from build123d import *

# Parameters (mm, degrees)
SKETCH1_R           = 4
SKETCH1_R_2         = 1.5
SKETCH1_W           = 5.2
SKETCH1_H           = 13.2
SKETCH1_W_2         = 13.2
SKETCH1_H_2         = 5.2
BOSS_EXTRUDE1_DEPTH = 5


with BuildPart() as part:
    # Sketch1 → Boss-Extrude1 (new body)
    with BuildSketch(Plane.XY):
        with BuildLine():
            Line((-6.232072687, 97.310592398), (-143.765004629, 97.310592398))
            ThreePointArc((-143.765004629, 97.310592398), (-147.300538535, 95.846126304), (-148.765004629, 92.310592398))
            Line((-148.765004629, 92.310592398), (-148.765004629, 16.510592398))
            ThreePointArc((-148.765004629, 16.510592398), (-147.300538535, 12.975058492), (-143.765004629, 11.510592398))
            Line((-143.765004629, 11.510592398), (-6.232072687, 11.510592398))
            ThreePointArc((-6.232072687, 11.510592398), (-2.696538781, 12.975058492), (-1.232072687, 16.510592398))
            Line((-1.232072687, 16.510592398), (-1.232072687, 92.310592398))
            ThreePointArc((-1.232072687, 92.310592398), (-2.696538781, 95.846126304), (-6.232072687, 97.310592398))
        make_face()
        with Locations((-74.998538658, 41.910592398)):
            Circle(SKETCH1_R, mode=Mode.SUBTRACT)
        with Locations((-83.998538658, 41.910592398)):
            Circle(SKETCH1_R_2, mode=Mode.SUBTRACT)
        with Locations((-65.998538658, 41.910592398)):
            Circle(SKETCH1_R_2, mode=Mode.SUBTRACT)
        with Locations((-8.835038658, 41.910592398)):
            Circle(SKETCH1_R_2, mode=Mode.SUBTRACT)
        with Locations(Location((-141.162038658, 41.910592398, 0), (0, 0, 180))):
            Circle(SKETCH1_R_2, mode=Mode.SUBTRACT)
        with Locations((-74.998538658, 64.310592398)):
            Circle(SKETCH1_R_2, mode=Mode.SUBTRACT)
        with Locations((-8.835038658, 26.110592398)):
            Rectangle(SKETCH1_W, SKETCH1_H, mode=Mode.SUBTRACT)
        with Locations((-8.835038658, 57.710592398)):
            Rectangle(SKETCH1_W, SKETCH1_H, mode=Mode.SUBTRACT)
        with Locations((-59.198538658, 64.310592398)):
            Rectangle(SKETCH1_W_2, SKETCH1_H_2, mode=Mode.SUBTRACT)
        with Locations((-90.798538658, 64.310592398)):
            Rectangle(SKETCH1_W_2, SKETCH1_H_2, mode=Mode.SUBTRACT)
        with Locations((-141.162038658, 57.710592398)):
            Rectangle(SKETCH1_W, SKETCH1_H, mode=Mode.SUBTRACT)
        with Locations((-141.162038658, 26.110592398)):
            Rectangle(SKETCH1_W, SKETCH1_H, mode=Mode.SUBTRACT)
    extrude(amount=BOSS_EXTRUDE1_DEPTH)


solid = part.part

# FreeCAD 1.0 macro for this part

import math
import FreeCAD as App
import Part
import Sketcher

doc = App.newDocument("Part")
body = doc.addObject("PartDesign::Body", "Body")

sketch1 = doc.addObject("Sketcher::SketchObject", "Sketch")
body.addObject(sketch1)
sketch1.AttachmentSupport = (doc.XY_Plane, [""])
sketch1.MapMode = "FlatFace"
sketch1.addGeometry(Part.LineSegment(App.Vector(-6.232073, 97.310592, 0), App.Vector(-143.765005, 97.310592, 0)), False)
sketch1.addGeometry(Part.ArcOfCircle(Part.Circle(App.Vector(-143.765005, 92.310592, 0), App.Vector(0, 0, 1), 5), math.radians(90), math.radians(180)), False)
sketch1.addGeometry(Part.LineSegment(App.Vector(-148.765005, 92.310592, 0), App.Vector(-148.765005, 16.510592, 0)), False)
sketch1.addGeometry(Part.ArcOfCircle(Part.Circle(App.Vector(-143.765005, 16.510592, 0), App.Vector(0, 0, 1), 5), math.radians(180), math.radians(270)), False)
sketch1.addGeometry(Part.LineSegment(App.Vector(-143.765005, 11.510592, 0), App.Vector(-6.232073, 11.510592, 0)), False)
sketch1.addGeometry(Part.ArcOfCircle(Part.Circle(App.Vector(-6.232073, 16.510592, 0), App.Vector(0, 0, 1), 5), math.radians(-90), math.radians(0)), False)
sketch1.addGeometry(Part.LineSegment(App.Vector(-1.232073, 16.510592, 0), App.Vector(-1.232073, 92.310592, 0)), False)
sketch1.addGeometry(Part.ArcOfCircle(Part.Circle(App.Vector(-6.232073, 92.310592, 0), App.Vector(0, 0, 1), 5), math.radians(0), math.radians(90)), False)
sketch1.addGeometry(Part.LineSegment(App.Vector(-138.562039, 19.510592, 0), App.Vector(-143.762039, 19.510592, 0)), False)
sketch1.addGeometry(Part.LineSegment(App.Vector(-143.762039, 19.510592, 0), App.Vector(-143.762039, 32.710592, 0)), False)
sketch1.addGeometry(Part.LineSegment(App.Vector(-143.762039, 32.710592, 0), App.Vector(-138.562039, 32.710592, 0)), False)
sketch1.addGeometry(Part.LineSegment(App.Vector(-138.562039, 32.710592, 0), App.Vector(-138.562039, 19.510592, 0)), False)
sketch1.addGeometry(Part.Circle(App.Vector(-141.162039, 41.910592, 0), App.Vector(0, 0, 1), 1.5), False)
sketch1.addGeometry(Part.Circle(App.Vector(-83.998539, 41.910592, 0), App.Vector(0, 0, 1), 1.5), False)
sketch1.addGeometry(Part.LineSegment(App.Vector(-6.235039, 19.510592, 0), App.Vector(-11.435039, 19.510592, 0)), False)
sketch1.addGeometry(Part.LineSegment(App.Vector(-11.435039, 19.510592, 0), App.Vector(-11.435039, 32.710592, 0)), False)
sketch1.addGeometry(Part.LineSegment(App.Vector(-11.435039, 32.710592, 0), App.Vector(-6.235039, 32.710592, 0)), False)
sketch1.addGeometry(Part.LineSegment(App.Vector(-6.235039, 32.710592, 0), App.Vector(-6.235039, 19.510592, 0)), False)
sketch1.addGeometry(Part.Circle(App.Vector(-74.998539, 41.910592, 0), App.Vector(0, 0, 1), 4), False)
sketch1.addGeometry(Part.Circle(App.Vector(-65.998539, 41.910592, 0), App.Vector(0, 0, 1), 1.5), False)
sketch1.addGeometry(Part.Circle(App.Vector(-8.835039, 41.910592, 0), App.Vector(0, 0, 1), 1.5), False)
sketch1.addGeometry(Part.LineSegment(App.Vector(-138.562039, 51.110592, 0), App.Vector(-143.762039, 51.110592, 0)), False)
sketch1.addGeometry(Part.LineSegment(App.Vector(-143.762039, 51.110592, 0), App.Vector(-143.762039, 64.310592, 0)), False)
sketch1.addGeometry(Part.LineSegment(App.Vector(-143.762039, 64.310592, 0), App.Vector(-138.562039, 64.310592, 0)), False)
sketch1.addGeometry(Part.LineSegment(App.Vector(-138.562039, 64.310592, 0), App.Vector(-138.562039, 51.110592, 0)), False)
sketch1.addGeometry(Part.LineSegment(App.Vector(-84.198539, 61.710592, 0), App.Vector(-97.398539, 61.710592, 0)), False)
sketch1.addGeometry(Part.LineSegment(App.Vector(-97.398539, 61.710592, 0), App.Vector(-97.398539, 66.910592, 0)), False)
sketch1.addGeometry(Part.LineSegment(App.Vector(-97.398539, 66.910592, 0), App.Vector(-84.198539, 66.910592, 0)), False)
sketch1.addGeometry(Part.LineSegment(App.Vector(-84.198539, 66.910592, 0), App.Vector(-84.198539, 61.710592, 0)), False)
sketch1.addGeometry(Part.Circle(App.Vector(-74.998539, 64.310592, 0), App.Vector(0, 0, 1), 1.5), False)
sketch1.addGeometry(Part.LineSegment(App.Vector(-52.598539, 61.710592, 0), App.Vector(-65.798539, 61.710592, 0)), False)
sketch1.addGeometry(Part.LineSegment(App.Vector(-65.798539, 61.710592, 0), App.Vector(-65.798539, 66.910592, 0)), False)
sketch1.addGeometry(Part.LineSegment(App.Vector(-65.798539, 66.910592, 0), App.Vector(-52.598539, 66.910592, 0)), False)
sketch1.addGeometry(Part.LineSegment(App.Vector(-52.598539, 66.910592, 0), App.Vector(-52.598539, 61.710592, 0)), False)
sketch1.addGeometry(Part.LineSegment(App.Vector(-6.235039, 51.110592, 0), App.Vector(-11.435039, 51.110592, 0)), False)
sketch1.addGeometry(Part.LineSegment(App.Vector(-11.435039, 51.110592, 0), App.Vector(-11.435039, 64.310592, 0)), False)
sketch1.addGeometry(Part.LineSegment(App.Vector(-11.435039, 64.310592, 0), App.Vector(-6.235039, 64.310592, 0)), False)
sketch1.addGeometry(Part.LineSegment(App.Vector(-6.235039, 64.310592, 0), App.Vector(-6.235039, 51.110592, 0)), False)
sketch1.addConstraint(Sketcher.Constraint("Tangent", 0, 2, 1, 1))
sketch1.addConstraint(Sketcher.Constraint("Tangent", 1, 2, 2, 1))
sketch1.addConstraint(Sketcher.Constraint("Tangent", 2, 2, 3, 1))
sketch1.addConstraint(Sketcher.Constraint("Tangent", 3, 2, 4, 1))
sketch1.addConstraint(Sketcher.Constraint("Tangent", 4, 2, 5, 1))
sketch1.addConstraint(Sketcher.Constraint("Tangent", 5, 2, 6, 1))
sketch1.addConstraint(Sketcher.Constraint("Tangent", 6, 2, 7, 1))
sketch1.addConstraint(Sketcher.Constraint("Tangent", 7, 2, 0, 1))
sketch1.addConstraint(Sketcher.Constraint("Coincident", 8, 2, 9, 1))
sketch1.addConstraint(Sketcher.Constraint("Coincident", 9, 2, 10, 1))
sketch1.addConstraint(Sketcher.Constraint("Coincident", 10, 2, 11, 1))
sketch1.addConstraint(Sketcher.Constraint("Coincident", 11, 2, 8, 1))
sketch1.addConstraint(Sketcher.Constraint("Coincident", 14, 2, 15, 1))
sketch1.addConstraint(Sketcher.Constraint("Coincident", 15, 2, 16, 1))
sketch1.addConstraint(Sketcher.Constraint("Coincident", 16, 2, 17, 1))
sketch1.addConstraint(Sketcher.Constraint("Coincident", 17, 2, 14, 1))
sketch1.addConstraint(Sketcher.Constraint("Coincident", 21, 2, 22, 1))
sketch1.addConstraint(Sketcher.Constraint("Coincident", 22, 2, 23, 1))
sketch1.addConstraint(Sketcher.Constraint("Coincident", 23, 2, 24, 1))
sketch1.addConstraint(Sketcher.Constraint("Coincident", 24, 2, 21, 1))
sketch1.addConstraint(Sketcher.Constraint("Coincident", 25, 2, 26, 1))
sketch1.addConstraint(Sketcher.Constraint("Coincident", 26, 2, 27, 1))
sketch1.addConstraint(Sketcher.Constraint("Coincident", 27, 2, 28, 1))
sketch1.addConstraint(Sketcher.Constraint("Coincident", 28, 2, 25, 1))
sketch1.addConstraint(Sketcher.Constraint("Coincident", 30, 2, 31, 1))
sketch1.addConstraint(Sketcher.Constraint("Coincident", 31, 2, 32, 1))
sketch1.addConstraint(Sketcher.Constraint("Coincident", 32, 2, 33, 1))
sketch1.addConstraint(Sketcher.Constraint("Coincident", 33, 2, 30, 1))
sketch1.addConstraint(Sketcher.Constraint("Coincident", 34, 2, 35, 1))
sketch1.addConstraint(Sketcher.Constraint("Coincident", 35, 2, 36, 1))
sketch1.addConstraint(Sketcher.Constraint("Coincident", 36, 2, 37, 1))
sketch1.addConstraint(Sketcher.Constraint("Coincident", 37, 2, 34, 1))
sketch1.addConstraint(Sketcher.Constraint("Horizontal", 0))
sketch1.addConstraint(Sketcher.Constraint("Vertical", 2))
sketch1.addConstraint(Sketcher.Constraint("Horizontal", 4))
sketch1.addConstraint(Sketcher.Constraint("Vertical", 6))
sketch1.addConstraint(Sketcher.Constraint("Horizontal", 8))
sketch1.addConstraint(Sketcher.Constraint("Vertical", 9))
sketch1.addConstraint(Sketcher.Constraint("Horizontal", 10))
sketch1.addConstraint(Sketcher.Constraint("Vertical", 11))
sketch1.addConstraint(Sketcher.Constraint("Horizontal", 14))
sketch1.addConstraint(Sketcher.Constraint("Vertical", 15))
sketch1.addConstraint(Sketcher.Constraint("Horizontal", 16))
sketch1.addConstraint(Sketcher.Constraint("Vertical", 17))
sketch1.addConstraint(Sketcher.Constraint("Horizontal", 21))
sketch1.addConstraint(Sketcher.Constraint("Vertical", 22))
sketch1.addConstraint(Sketcher.Constraint("Horizontal", 23))
sketch1.addConstraint(Sketcher.Constraint("Vertical", 24))
sketch1.addConstraint(Sketcher.Constraint("Horizontal", 25))
sketch1.addConstraint(Sketcher.Constraint("Vertical", 26))
sketch1.addConstraint(Sketcher.Constraint("Horizontal", 27))
sketch1.addConstraint(Sketcher.Constraint("Vertical", 28))
sketch1.addConstraint(Sketcher.Constraint("Horizontal", 30))
sketch1.addConstraint(Sketcher.Constraint("Vertical", 31))
sketch1.addConstraint(Sketcher.Constraint("Horizontal", 32))
sketch1.addConstraint(Sketcher.Constraint("Vertical", 33))
sketch1.addConstraint(Sketcher.Constraint("Horizontal", 34))
sketch1.addConstraint(Sketcher.Constraint("Vertical", 35))
sketch1.addConstraint(Sketcher.Constraint("Horizontal", 36))
sketch1.addConstraint(Sketcher.Constraint("Vertical", 37))
sketch1.addConstraint(Sketcher.Constraint("Equal", 1, 3))
sketch1.addConstraint(Sketcher.Constraint("Equal", 3, 5))
sketch1.addConstraint(Sketcher.Constraint("Equal", 5, 7))
sketch1.addConstraint(Sketcher.Constraint("Equal", 12, 13))
sketch1.addConstraint(Sketcher.Constraint("Equal", 13, 19))
sketch1.addConstraint(Sketcher.Constraint("Equal", 19, 20))
sketch1.addConstraint(Sketcher.Constraint("Equal", 20, 29))
sketch1.addConstraint(Sketcher.Constraint("Horizontal", 12, 3, 13, 3))
sketch1.addConstraint(Sketcher.Constraint("Horizontal", 13, 3, 18, 3))
sketch1.addConstraint(Sketcher.Constraint("Horizontal", 18, 3, 19, 3))
sketch1.addConstraint(Sketcher.Constraint("Horizontal", 19, 3, 20, 3))
sketch1.addConstraint(Sketcher.Constraint("Horizontal", 11, 2, 14, 2))
sketch1.addConstraint(Sketcher.Constraint("Horizontal", 10, 2, 15, 2))
sketch1.addConstraint(Sketcher.Constraint("Horizontal", 29, 3, 22, 2))
sketch1.addConstraint(Sketcher.Constraint("Horizontal", 28, 2, 30, 2))
sketch1.addConstraint(Sketcher.Constraint("Horizontal", 27, 2, 31, 2))
sketch1.addConstraint(Sketcher.Constraint("Horizontal", 24, 2, 34, 2))
sketch1.addConstraint(Sketcher.Constraint("Horizontal", 23, 2, 35, 2))
sketch1.addConstraint(Sketcher.Constraint("Vertical", 18, 3, 29, 3))
sketch1.addConstraint(Sketcher.Constraint("Vertical", 9, 2, 21, 2))
sketch1.addConstraint(Sketcher.Constraint("Vertical", 11, 2, 23, 2))
sketch1.addConstraint(Sketcher.Constraint("Vertical", 15, 2, 34, 2))
sketch1.addConstraint(Sketcher.Constraint("Vertical", 17, 2, 36, 2))
sketch1.addConstraint(Sketcher.Constraint("Equal", 10, 14))
sketch1.addConstraint(Sketcher.Constraint("Equal", 27, 30))
sketch1.addConstraint(Sketcher.Constraint("Equal", 32, 9))
sketch1.addConstraint(Sketcher.Constraint("Equal", 17, 22))
sketch1.addConstraint(Sketcher.Constraint("Equal", 36, 26))
sketch1.addConstraint(Sketcher.Constraint("Diameter", 12, 3.0))
sketch1.addConstraint(Sketcher.Constraint("Diameter", 18, 8.0))
sketch1.addConstraint(Sketcher.Constraint("Radius", 1, 5.0))
sketch1.addConstraint(Sketcher.Constraint("DistanceX", 8, 2, 8, 1, 5.2))
sketch1.addConstraint(Sketcher.Constraint("DistanceX", 25, 2, 25, 1, 13.2))
sketch1.addConstraint(Sketcher.Constraint("DistanceY", 2, 2, 2, 1, 75.8))
sketch1.addConstraint(Sketcher.Constraint("DistanceX", 13, 3, 18, 3, 9.0))
sketch1.addConstraint(Sketcher.Constraint("DistanceX", 18, 3, 19, 3, 9.0))
sketch1.addConstraint(Sketcher.Constraint("DistanceY", 29, 3, 0, 2, 33.0))
sketch1.addConstraint(Sketcher.Constraint("DistanceY", 3, 3, 8, 2, 3.0))
sketch1.addConstraint(Sketcher.Constraint("DistanceY", 13, 3, 26, 2, 25.0))
sketch1.addConstraint(Sketcher.Constraint("DistanceY", 3, 3, 12, 3, 25.4))
sketch1.addConstraint(Sketcher.Constraint("DistanceX", 8, 2, 12, 3, 2.6))
sketch1.addConstraint(Sketcher.Constraint("DistanceX", 14, 2, 20, 3, 2.6))
sketch1.addConstraint(Sketcher.Constraint("DistanceX", 25, 2, 29, 3, 22.4))
sketch1.addConstraint(Sketcher.Constraint("DistanceX", 29, 3, 30, 2, 9.2))
sketch1.addConstraint(Sketcher.Constraint("DistanceX", 0, 2, 0, 1, 137.532932))
sketch1.addConstraint(Sketcher.Constraint("DistanceX", 12, 3, 13, 3, 57.1635))
sketch1.addConstraint(Sketcher.Constraint("DistanceX", 19, 3, 20, 3, 57.1635))
sketch1.addConstraint(Sketcher.Constraint("DistanceX", 12, 3, -1, 1, 141.162039))
sketch1.addConstraint(Sketcher.Constraint("DistanceX", 1, 3, -1, 1, 143.765005))
sketch1.addConstraint(Sketcher.Constraint("DistanceY", -1, 1, 1, 3, 92.310592))
pad1 = doc.addObject("PartDesign::Pad", "Pad")
body.addObject(pad1)
pad1.Profile = sketch1
pad1.Length = 5

doc.recompute()
